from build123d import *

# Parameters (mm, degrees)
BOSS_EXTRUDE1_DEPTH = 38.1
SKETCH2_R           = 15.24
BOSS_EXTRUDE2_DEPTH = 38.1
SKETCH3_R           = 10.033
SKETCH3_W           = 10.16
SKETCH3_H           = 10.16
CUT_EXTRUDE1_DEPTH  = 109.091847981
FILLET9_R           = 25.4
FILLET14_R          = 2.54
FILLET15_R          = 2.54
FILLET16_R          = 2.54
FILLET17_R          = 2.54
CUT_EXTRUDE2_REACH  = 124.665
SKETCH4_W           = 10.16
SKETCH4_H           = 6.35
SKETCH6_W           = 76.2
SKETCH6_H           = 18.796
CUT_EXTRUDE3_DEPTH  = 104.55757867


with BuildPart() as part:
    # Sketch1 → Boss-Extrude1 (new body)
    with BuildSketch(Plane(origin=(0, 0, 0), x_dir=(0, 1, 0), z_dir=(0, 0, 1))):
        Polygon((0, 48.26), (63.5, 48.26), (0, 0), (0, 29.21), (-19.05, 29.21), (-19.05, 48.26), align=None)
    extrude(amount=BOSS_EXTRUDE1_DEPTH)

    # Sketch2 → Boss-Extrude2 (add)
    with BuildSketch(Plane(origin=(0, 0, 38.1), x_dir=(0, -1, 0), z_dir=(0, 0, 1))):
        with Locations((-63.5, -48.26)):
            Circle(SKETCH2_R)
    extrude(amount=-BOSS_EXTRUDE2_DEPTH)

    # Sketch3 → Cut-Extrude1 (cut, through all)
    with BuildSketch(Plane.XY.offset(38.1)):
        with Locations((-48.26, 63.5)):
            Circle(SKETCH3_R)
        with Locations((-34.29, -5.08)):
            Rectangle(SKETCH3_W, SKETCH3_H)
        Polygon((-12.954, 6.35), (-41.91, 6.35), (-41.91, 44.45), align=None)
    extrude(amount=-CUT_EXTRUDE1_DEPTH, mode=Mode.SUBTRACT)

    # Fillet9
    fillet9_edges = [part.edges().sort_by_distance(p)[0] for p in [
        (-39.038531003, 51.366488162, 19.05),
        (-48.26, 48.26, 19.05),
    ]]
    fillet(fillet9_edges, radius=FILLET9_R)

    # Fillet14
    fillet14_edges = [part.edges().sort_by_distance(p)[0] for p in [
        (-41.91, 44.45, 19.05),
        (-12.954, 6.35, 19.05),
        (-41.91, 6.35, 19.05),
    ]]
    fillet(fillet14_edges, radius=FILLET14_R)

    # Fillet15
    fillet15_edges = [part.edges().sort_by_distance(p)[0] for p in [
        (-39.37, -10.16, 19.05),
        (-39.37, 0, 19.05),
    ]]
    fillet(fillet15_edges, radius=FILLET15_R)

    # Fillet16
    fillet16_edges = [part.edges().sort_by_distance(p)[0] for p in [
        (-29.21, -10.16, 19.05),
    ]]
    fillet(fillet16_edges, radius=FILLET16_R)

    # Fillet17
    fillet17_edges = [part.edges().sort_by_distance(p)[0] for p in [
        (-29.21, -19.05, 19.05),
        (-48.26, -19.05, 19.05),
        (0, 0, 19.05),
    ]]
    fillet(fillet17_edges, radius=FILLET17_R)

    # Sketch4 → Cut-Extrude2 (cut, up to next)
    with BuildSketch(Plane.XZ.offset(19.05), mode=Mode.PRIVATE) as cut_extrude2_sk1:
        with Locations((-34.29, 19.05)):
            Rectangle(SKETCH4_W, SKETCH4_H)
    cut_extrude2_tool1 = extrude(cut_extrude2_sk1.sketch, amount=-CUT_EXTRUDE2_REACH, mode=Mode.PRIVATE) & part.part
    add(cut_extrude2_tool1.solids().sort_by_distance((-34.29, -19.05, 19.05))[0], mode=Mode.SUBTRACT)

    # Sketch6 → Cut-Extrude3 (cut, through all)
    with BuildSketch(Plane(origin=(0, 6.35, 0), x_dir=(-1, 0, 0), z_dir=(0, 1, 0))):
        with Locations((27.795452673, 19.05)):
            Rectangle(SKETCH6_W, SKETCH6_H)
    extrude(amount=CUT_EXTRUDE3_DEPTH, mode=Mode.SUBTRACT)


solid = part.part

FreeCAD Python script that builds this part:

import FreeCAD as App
import Part
import Sketcher
from FreeCAD import Vector
Q = App.Units.Quantity


def edges_at(feature, points):
    """Names of the edges that pass closest to the given points."""
    edges = feature.Shape.Edges
    near = lambda p: min(range(len(edges)), key=lambda i: edges[i].distToShape(Part.Vertex(*p))[0])
    return sorted({f"Edge{near(p) + 1}" for p in points})


def add_polygon(sketch, points):
    """Adds a closed chain of lines whose ends are joined by coincident constraints."""
    first, n = sketch.GeometryCount, len(points)
    for a, b in zip(points, points[1:] + points[:1]):
        sketch.addGeometry(Part.LineSegment(App.Vector(*a, 0), App.Vector(*b, 0)), False)
    for i in range(n):
        sketch.addConstraint(Sketcher.Constraint("Coincident", first + i, 2, first + (i + 1) % n, 1))

doc = App.newDocument("Part")
body = doc.addObject("PartDesign::Body", "Body")

# Sketch on XY plane
sketch1 = doc.addObject("Sketcher::SketchObject", "Sketch")
body.addObject(sketch1)
sketch1.AttachmentSupport = (doc.XY_Plane, [""])
sketch1.MapMode = "FlatFace"
add_polygon(sketch1, [(-48, 64), (-48, -19), (-29, -19), (-29, 0), (0, 0)])  # lines 0-4
sketch1.addConstraint([
    Sketcher.Constraint("Vertical", 0),
    Sketcher.Constraint("Horizontal", 1),
    Sketcher.Constraint("Vertical", 2),
    Sketcher.Constraint("Horizontal", 3),
    Sketcher.Constraint("Coincident", 3, 2, -1, 1),
    Sketcher.Constraint("Equal", 1, 2),
    Sketcher.Constraint("DistanceX", 1, 1, 1, 2, Q("0.75 in")),
    Sketcher.Constraint("DistanceX", 3, 1, 3, 2, Q("1.15 in")),
    Sketcher.Constraint("DistanceY", 0, 2, 0, 1, Q("3.25 in")),
])
pad1 = doc.addObject("PartDesign::Pad", "Pad")
body.addObject(pad1)
pad1.Profile = sketch1
pad1.Length = Q("1.5 in")

# Sketch on XY plane
sketch2 = doc.addObject("Sketcher::SketchObject", "Sketch001")
body.addObject(sketch2)
sketch2.AttachmentSupport = (doc.XY_Plane, [""])
sketch2.MapMode = "FlatFace"
sketch2.AttachmentOffset = App.Placement(Vector(0, 0, 1.5 * 25.4), App.Rotation())
sketch2.addGeometry(Part.Circle(Vector(-48, 64, 0), Vector(0, 0, 1), 15), False)
sketch2.addConstraint([
    Sketcher.Constraint("Diameter", 0, Q("1.2 in")),
    Sketcher.Constraint("DistanceX", 0, 3, -1, 1, Q("1.9 in")),
    Sketcher.Constraint("DistanceY", -1, 1, 0, 3, Q("2.5 in")),
])
pad2 = doc.addObject("PartDesign::Pad", "Pad001")
body.addObject(pad2)
pad2.Profile = sketch2
pad2.Length = Q("1.5 in")
pad2.Reversed = True

# Sketch on XY plane
sketch3 = doc.addObject("Sketcher::SketchObject", "Sketch002")
body.addObject(sketch3)
sketch3.AttachmentSupport = (doc.XY_Plane, [""])
sketch3.MapMode = "FlatFace"
sketch3.AttachmentOffset = App.Placement(Vector(0, 0, 1.5 * 25.4), App.Rotation())
sketch3.addGeometry(Part.Circle(Vector(-48, 64, 0), Vector(0, 0, 1), 10), False)  # 0
add_polygon(sketch3, [(-39, 0), (-39, -10), (-29, -10), (-29, 0)])  # lines 1-4
add_polygon(sketch3, [(-42, 6), (-13, 6), (-42, 44)])  # lines 5-7
sketch3.addConstraint([
    Sketcher.Constraint("Vertical", 1),
    Sketcher.Constraint("Horizontal", 2),
    Sketcher.Constraint("Vertical", 3),
    Sketcher.Constraint("Horizontal", 4),
    Sketcher.Constraint("Horizontal", 5),
    Sketcher.Constraint("Vertical", 7),
    Sketcher.Constraint("PointOnObject", 3, 2, -1),
    Sketcher.Constraint("Equal", 4, 1),
    Sketcher.Constraint("Diameter", 0, Q("0.79 in")),
    Sketcher.Constraint("DistanceX", 2, 1, 2, 2, Q("0.4 in")),
    Sketcher.Constraint("DistanceY", 7, 2, 7, 1, Q("1.5 in")),
    Sketcher.Constraint("DistanceX", 5, 1, 5, 2, Q("1.14 in")),
    Sketcher.Constraint("DistanceX", 0, 3, -1, 1, Q("1.9 in")),
    Sketcher.Constraint("DistanceY", -1, 1, 0, 3, Q("2.5 in")),
    Sketcher.Constraint("DistanceX", 6, 2, 4, 2, Q("0.1 in")),
    Sketcher.Constraint("DistanceX", 1, 2, -1, 1, Q("1.55 in")),
    Sketcher.Constraint("DistanceY", -1, 1, 5, 2, Q("0.25 in")),
])
pocket1 = doc.addObject("PartDesign::Pocket", "Pocket")
body.addObject(pocket1)
pocket1.Profile = sketch3
pocket1.Type = "ThroughAll"
doc.recompute()

fillet = doc.addObject("PartDesign::Fillet", "Fillet")
body.addObject(fillet)
fillet.Base = (pocket1, edges_at(pocket1, [(-39.039, 51.366, 19.05), (-48.26, 48.26, 19.05)]))
fillet.Radius = Q("1 in")
doc.recompute()

fillet2 = doc.addObject("PartDesign::Fillet", "Fillet001")
body.addObject(fillet2)
fillet2.Base = (fillet, edges_at(fillet, [(-41.91, 44.45, 19.05), (-12.954, 6.35, 19.05), (-41.91, 6.35, 19.05)]))
fillet2.Radius = Q("0.1 in")
doc.recompute()

fillet3 = doc.addObject("PartDesign::Fillet", "Fillet002")
body.addObject(fillet3)
fillet3.Base = (fillet2, edges_at(fillet2, [(-39.37, -10.16, 19.05), (-39.37, 0, 19.05)]))
fillet3.Radius = Q("0.1 in")
doc.recompute()

fillet4 = doc.addObject("PartDesign::Fillet", "Fillet003")
body.addObject(fillet4)
fillet4.Base = (fillet3, edges_at(fillet3, [(-29.21, -10.16, 19.05)]))
fillet4.Radius = Q("0.1 in")
doc.recompute()

fillet5 = doc.addObject("PartDesign::Fillet", "Fillet004")
body.addObject(fillet5)
fillet5.Base = (fillet4, edges_at(fillet4, [(-29.21, -19.05, 19.05), (-48.26, -19.05, 19.05), (0, 0, 19.05)]))
fillet5.Radius = Q("0.1 in")

# Sketch on XZ plane
sketch4 = doc.addObject("Sketcher::SketchObject", "Sketch003")
body.addObject(sketch4)
sketch4.AttachmentSupport = (doc.XZ_Plane, [""])
sketch4.MapMode = "FlatFace"
sketch4.AttachmentOffset = App.Placement(Vector(0, 0, 0.75 * 25.4), App.Rotation())
add_polygon(sketch4, [(-39, 22), (-39, 16), (-29, 16), (-29, 22)])  # lines 0-3
sketch4.addConstraint([
    Sketcher.Constraint("Vertical", 0),
    Sketcher.Constraint("Horizontal", 1),
    Sketcher.Constraint("Vertical", 2),
    Sketcher.Constraint("Horizontal", 3),
    Sketcher.Constraint("DistanceX", 1, 1, 1, 2, Q("0.4 in")),
    Sketcher.Constraint("DistanceY", 0, 2, 0, 1, Q("0.25 in")),
    Sketcher.Constraint("DistanceX", 0, 2, -1, 1, Q("1.55 in")),
    Sketcher.Constraint("DistanceY", -1, 1, 0, 2, Q("0.625 in")),
])
pocket2 = doc.addObject("PartDesign::Pocket", "Pocket001")
body.addObject(pocket2)
pocket2.Profile = sketch4
pocket2.Length = Q("0.45 in")

# Sketch on XZ plane
sketch5 = doc.addObject("Sketcher::SketchObject", "Sketch004")
body.addObject(sketch5)
sketch5.AttachmentSupport = (doc.XZ_Plane, [""])
sketch5.MapMode = "FlatFace"
sketch5.AttachmentOffset = App.Placement(Vector(0, 0, -0.25 * 25.4), App.Rotation())
add_polygon(sketch5, [(10, 28), (10, 10), (-66, 10), (-66, 28)])  # lines 0-3
sketch5.addConstraint([
    Sketcher.Constraint("Vertical", 0),
    Sketcher.Constraint("Horizontal", 1),
    Sketcher.Constraint("Vertical", 2),
    Sketcher.Constraint("Horizontal", 3),
    Sketcher.Constraint("DistanceX", 1, 2, 1, 1, Q("3 in")),
    Sketcher.Constraint("DistanceY", 0, 2, 0, 1, Q("0.74 in")),
    Sketcher.Constraint("DistanceY", -1, 1, 0, 2, Q("0.38 in")),
    Sketcher.Constraint("DistanceX", -1, 1, 0, 2, 10.304547),
])
pocket3 = doc.addObject("PartDesign::Pocket", "Pocket002")
body.addObject(pocket3)
pocket3.Profile = sketch5
pocket3.Type = "ThroughAll"

doc.recompute()
